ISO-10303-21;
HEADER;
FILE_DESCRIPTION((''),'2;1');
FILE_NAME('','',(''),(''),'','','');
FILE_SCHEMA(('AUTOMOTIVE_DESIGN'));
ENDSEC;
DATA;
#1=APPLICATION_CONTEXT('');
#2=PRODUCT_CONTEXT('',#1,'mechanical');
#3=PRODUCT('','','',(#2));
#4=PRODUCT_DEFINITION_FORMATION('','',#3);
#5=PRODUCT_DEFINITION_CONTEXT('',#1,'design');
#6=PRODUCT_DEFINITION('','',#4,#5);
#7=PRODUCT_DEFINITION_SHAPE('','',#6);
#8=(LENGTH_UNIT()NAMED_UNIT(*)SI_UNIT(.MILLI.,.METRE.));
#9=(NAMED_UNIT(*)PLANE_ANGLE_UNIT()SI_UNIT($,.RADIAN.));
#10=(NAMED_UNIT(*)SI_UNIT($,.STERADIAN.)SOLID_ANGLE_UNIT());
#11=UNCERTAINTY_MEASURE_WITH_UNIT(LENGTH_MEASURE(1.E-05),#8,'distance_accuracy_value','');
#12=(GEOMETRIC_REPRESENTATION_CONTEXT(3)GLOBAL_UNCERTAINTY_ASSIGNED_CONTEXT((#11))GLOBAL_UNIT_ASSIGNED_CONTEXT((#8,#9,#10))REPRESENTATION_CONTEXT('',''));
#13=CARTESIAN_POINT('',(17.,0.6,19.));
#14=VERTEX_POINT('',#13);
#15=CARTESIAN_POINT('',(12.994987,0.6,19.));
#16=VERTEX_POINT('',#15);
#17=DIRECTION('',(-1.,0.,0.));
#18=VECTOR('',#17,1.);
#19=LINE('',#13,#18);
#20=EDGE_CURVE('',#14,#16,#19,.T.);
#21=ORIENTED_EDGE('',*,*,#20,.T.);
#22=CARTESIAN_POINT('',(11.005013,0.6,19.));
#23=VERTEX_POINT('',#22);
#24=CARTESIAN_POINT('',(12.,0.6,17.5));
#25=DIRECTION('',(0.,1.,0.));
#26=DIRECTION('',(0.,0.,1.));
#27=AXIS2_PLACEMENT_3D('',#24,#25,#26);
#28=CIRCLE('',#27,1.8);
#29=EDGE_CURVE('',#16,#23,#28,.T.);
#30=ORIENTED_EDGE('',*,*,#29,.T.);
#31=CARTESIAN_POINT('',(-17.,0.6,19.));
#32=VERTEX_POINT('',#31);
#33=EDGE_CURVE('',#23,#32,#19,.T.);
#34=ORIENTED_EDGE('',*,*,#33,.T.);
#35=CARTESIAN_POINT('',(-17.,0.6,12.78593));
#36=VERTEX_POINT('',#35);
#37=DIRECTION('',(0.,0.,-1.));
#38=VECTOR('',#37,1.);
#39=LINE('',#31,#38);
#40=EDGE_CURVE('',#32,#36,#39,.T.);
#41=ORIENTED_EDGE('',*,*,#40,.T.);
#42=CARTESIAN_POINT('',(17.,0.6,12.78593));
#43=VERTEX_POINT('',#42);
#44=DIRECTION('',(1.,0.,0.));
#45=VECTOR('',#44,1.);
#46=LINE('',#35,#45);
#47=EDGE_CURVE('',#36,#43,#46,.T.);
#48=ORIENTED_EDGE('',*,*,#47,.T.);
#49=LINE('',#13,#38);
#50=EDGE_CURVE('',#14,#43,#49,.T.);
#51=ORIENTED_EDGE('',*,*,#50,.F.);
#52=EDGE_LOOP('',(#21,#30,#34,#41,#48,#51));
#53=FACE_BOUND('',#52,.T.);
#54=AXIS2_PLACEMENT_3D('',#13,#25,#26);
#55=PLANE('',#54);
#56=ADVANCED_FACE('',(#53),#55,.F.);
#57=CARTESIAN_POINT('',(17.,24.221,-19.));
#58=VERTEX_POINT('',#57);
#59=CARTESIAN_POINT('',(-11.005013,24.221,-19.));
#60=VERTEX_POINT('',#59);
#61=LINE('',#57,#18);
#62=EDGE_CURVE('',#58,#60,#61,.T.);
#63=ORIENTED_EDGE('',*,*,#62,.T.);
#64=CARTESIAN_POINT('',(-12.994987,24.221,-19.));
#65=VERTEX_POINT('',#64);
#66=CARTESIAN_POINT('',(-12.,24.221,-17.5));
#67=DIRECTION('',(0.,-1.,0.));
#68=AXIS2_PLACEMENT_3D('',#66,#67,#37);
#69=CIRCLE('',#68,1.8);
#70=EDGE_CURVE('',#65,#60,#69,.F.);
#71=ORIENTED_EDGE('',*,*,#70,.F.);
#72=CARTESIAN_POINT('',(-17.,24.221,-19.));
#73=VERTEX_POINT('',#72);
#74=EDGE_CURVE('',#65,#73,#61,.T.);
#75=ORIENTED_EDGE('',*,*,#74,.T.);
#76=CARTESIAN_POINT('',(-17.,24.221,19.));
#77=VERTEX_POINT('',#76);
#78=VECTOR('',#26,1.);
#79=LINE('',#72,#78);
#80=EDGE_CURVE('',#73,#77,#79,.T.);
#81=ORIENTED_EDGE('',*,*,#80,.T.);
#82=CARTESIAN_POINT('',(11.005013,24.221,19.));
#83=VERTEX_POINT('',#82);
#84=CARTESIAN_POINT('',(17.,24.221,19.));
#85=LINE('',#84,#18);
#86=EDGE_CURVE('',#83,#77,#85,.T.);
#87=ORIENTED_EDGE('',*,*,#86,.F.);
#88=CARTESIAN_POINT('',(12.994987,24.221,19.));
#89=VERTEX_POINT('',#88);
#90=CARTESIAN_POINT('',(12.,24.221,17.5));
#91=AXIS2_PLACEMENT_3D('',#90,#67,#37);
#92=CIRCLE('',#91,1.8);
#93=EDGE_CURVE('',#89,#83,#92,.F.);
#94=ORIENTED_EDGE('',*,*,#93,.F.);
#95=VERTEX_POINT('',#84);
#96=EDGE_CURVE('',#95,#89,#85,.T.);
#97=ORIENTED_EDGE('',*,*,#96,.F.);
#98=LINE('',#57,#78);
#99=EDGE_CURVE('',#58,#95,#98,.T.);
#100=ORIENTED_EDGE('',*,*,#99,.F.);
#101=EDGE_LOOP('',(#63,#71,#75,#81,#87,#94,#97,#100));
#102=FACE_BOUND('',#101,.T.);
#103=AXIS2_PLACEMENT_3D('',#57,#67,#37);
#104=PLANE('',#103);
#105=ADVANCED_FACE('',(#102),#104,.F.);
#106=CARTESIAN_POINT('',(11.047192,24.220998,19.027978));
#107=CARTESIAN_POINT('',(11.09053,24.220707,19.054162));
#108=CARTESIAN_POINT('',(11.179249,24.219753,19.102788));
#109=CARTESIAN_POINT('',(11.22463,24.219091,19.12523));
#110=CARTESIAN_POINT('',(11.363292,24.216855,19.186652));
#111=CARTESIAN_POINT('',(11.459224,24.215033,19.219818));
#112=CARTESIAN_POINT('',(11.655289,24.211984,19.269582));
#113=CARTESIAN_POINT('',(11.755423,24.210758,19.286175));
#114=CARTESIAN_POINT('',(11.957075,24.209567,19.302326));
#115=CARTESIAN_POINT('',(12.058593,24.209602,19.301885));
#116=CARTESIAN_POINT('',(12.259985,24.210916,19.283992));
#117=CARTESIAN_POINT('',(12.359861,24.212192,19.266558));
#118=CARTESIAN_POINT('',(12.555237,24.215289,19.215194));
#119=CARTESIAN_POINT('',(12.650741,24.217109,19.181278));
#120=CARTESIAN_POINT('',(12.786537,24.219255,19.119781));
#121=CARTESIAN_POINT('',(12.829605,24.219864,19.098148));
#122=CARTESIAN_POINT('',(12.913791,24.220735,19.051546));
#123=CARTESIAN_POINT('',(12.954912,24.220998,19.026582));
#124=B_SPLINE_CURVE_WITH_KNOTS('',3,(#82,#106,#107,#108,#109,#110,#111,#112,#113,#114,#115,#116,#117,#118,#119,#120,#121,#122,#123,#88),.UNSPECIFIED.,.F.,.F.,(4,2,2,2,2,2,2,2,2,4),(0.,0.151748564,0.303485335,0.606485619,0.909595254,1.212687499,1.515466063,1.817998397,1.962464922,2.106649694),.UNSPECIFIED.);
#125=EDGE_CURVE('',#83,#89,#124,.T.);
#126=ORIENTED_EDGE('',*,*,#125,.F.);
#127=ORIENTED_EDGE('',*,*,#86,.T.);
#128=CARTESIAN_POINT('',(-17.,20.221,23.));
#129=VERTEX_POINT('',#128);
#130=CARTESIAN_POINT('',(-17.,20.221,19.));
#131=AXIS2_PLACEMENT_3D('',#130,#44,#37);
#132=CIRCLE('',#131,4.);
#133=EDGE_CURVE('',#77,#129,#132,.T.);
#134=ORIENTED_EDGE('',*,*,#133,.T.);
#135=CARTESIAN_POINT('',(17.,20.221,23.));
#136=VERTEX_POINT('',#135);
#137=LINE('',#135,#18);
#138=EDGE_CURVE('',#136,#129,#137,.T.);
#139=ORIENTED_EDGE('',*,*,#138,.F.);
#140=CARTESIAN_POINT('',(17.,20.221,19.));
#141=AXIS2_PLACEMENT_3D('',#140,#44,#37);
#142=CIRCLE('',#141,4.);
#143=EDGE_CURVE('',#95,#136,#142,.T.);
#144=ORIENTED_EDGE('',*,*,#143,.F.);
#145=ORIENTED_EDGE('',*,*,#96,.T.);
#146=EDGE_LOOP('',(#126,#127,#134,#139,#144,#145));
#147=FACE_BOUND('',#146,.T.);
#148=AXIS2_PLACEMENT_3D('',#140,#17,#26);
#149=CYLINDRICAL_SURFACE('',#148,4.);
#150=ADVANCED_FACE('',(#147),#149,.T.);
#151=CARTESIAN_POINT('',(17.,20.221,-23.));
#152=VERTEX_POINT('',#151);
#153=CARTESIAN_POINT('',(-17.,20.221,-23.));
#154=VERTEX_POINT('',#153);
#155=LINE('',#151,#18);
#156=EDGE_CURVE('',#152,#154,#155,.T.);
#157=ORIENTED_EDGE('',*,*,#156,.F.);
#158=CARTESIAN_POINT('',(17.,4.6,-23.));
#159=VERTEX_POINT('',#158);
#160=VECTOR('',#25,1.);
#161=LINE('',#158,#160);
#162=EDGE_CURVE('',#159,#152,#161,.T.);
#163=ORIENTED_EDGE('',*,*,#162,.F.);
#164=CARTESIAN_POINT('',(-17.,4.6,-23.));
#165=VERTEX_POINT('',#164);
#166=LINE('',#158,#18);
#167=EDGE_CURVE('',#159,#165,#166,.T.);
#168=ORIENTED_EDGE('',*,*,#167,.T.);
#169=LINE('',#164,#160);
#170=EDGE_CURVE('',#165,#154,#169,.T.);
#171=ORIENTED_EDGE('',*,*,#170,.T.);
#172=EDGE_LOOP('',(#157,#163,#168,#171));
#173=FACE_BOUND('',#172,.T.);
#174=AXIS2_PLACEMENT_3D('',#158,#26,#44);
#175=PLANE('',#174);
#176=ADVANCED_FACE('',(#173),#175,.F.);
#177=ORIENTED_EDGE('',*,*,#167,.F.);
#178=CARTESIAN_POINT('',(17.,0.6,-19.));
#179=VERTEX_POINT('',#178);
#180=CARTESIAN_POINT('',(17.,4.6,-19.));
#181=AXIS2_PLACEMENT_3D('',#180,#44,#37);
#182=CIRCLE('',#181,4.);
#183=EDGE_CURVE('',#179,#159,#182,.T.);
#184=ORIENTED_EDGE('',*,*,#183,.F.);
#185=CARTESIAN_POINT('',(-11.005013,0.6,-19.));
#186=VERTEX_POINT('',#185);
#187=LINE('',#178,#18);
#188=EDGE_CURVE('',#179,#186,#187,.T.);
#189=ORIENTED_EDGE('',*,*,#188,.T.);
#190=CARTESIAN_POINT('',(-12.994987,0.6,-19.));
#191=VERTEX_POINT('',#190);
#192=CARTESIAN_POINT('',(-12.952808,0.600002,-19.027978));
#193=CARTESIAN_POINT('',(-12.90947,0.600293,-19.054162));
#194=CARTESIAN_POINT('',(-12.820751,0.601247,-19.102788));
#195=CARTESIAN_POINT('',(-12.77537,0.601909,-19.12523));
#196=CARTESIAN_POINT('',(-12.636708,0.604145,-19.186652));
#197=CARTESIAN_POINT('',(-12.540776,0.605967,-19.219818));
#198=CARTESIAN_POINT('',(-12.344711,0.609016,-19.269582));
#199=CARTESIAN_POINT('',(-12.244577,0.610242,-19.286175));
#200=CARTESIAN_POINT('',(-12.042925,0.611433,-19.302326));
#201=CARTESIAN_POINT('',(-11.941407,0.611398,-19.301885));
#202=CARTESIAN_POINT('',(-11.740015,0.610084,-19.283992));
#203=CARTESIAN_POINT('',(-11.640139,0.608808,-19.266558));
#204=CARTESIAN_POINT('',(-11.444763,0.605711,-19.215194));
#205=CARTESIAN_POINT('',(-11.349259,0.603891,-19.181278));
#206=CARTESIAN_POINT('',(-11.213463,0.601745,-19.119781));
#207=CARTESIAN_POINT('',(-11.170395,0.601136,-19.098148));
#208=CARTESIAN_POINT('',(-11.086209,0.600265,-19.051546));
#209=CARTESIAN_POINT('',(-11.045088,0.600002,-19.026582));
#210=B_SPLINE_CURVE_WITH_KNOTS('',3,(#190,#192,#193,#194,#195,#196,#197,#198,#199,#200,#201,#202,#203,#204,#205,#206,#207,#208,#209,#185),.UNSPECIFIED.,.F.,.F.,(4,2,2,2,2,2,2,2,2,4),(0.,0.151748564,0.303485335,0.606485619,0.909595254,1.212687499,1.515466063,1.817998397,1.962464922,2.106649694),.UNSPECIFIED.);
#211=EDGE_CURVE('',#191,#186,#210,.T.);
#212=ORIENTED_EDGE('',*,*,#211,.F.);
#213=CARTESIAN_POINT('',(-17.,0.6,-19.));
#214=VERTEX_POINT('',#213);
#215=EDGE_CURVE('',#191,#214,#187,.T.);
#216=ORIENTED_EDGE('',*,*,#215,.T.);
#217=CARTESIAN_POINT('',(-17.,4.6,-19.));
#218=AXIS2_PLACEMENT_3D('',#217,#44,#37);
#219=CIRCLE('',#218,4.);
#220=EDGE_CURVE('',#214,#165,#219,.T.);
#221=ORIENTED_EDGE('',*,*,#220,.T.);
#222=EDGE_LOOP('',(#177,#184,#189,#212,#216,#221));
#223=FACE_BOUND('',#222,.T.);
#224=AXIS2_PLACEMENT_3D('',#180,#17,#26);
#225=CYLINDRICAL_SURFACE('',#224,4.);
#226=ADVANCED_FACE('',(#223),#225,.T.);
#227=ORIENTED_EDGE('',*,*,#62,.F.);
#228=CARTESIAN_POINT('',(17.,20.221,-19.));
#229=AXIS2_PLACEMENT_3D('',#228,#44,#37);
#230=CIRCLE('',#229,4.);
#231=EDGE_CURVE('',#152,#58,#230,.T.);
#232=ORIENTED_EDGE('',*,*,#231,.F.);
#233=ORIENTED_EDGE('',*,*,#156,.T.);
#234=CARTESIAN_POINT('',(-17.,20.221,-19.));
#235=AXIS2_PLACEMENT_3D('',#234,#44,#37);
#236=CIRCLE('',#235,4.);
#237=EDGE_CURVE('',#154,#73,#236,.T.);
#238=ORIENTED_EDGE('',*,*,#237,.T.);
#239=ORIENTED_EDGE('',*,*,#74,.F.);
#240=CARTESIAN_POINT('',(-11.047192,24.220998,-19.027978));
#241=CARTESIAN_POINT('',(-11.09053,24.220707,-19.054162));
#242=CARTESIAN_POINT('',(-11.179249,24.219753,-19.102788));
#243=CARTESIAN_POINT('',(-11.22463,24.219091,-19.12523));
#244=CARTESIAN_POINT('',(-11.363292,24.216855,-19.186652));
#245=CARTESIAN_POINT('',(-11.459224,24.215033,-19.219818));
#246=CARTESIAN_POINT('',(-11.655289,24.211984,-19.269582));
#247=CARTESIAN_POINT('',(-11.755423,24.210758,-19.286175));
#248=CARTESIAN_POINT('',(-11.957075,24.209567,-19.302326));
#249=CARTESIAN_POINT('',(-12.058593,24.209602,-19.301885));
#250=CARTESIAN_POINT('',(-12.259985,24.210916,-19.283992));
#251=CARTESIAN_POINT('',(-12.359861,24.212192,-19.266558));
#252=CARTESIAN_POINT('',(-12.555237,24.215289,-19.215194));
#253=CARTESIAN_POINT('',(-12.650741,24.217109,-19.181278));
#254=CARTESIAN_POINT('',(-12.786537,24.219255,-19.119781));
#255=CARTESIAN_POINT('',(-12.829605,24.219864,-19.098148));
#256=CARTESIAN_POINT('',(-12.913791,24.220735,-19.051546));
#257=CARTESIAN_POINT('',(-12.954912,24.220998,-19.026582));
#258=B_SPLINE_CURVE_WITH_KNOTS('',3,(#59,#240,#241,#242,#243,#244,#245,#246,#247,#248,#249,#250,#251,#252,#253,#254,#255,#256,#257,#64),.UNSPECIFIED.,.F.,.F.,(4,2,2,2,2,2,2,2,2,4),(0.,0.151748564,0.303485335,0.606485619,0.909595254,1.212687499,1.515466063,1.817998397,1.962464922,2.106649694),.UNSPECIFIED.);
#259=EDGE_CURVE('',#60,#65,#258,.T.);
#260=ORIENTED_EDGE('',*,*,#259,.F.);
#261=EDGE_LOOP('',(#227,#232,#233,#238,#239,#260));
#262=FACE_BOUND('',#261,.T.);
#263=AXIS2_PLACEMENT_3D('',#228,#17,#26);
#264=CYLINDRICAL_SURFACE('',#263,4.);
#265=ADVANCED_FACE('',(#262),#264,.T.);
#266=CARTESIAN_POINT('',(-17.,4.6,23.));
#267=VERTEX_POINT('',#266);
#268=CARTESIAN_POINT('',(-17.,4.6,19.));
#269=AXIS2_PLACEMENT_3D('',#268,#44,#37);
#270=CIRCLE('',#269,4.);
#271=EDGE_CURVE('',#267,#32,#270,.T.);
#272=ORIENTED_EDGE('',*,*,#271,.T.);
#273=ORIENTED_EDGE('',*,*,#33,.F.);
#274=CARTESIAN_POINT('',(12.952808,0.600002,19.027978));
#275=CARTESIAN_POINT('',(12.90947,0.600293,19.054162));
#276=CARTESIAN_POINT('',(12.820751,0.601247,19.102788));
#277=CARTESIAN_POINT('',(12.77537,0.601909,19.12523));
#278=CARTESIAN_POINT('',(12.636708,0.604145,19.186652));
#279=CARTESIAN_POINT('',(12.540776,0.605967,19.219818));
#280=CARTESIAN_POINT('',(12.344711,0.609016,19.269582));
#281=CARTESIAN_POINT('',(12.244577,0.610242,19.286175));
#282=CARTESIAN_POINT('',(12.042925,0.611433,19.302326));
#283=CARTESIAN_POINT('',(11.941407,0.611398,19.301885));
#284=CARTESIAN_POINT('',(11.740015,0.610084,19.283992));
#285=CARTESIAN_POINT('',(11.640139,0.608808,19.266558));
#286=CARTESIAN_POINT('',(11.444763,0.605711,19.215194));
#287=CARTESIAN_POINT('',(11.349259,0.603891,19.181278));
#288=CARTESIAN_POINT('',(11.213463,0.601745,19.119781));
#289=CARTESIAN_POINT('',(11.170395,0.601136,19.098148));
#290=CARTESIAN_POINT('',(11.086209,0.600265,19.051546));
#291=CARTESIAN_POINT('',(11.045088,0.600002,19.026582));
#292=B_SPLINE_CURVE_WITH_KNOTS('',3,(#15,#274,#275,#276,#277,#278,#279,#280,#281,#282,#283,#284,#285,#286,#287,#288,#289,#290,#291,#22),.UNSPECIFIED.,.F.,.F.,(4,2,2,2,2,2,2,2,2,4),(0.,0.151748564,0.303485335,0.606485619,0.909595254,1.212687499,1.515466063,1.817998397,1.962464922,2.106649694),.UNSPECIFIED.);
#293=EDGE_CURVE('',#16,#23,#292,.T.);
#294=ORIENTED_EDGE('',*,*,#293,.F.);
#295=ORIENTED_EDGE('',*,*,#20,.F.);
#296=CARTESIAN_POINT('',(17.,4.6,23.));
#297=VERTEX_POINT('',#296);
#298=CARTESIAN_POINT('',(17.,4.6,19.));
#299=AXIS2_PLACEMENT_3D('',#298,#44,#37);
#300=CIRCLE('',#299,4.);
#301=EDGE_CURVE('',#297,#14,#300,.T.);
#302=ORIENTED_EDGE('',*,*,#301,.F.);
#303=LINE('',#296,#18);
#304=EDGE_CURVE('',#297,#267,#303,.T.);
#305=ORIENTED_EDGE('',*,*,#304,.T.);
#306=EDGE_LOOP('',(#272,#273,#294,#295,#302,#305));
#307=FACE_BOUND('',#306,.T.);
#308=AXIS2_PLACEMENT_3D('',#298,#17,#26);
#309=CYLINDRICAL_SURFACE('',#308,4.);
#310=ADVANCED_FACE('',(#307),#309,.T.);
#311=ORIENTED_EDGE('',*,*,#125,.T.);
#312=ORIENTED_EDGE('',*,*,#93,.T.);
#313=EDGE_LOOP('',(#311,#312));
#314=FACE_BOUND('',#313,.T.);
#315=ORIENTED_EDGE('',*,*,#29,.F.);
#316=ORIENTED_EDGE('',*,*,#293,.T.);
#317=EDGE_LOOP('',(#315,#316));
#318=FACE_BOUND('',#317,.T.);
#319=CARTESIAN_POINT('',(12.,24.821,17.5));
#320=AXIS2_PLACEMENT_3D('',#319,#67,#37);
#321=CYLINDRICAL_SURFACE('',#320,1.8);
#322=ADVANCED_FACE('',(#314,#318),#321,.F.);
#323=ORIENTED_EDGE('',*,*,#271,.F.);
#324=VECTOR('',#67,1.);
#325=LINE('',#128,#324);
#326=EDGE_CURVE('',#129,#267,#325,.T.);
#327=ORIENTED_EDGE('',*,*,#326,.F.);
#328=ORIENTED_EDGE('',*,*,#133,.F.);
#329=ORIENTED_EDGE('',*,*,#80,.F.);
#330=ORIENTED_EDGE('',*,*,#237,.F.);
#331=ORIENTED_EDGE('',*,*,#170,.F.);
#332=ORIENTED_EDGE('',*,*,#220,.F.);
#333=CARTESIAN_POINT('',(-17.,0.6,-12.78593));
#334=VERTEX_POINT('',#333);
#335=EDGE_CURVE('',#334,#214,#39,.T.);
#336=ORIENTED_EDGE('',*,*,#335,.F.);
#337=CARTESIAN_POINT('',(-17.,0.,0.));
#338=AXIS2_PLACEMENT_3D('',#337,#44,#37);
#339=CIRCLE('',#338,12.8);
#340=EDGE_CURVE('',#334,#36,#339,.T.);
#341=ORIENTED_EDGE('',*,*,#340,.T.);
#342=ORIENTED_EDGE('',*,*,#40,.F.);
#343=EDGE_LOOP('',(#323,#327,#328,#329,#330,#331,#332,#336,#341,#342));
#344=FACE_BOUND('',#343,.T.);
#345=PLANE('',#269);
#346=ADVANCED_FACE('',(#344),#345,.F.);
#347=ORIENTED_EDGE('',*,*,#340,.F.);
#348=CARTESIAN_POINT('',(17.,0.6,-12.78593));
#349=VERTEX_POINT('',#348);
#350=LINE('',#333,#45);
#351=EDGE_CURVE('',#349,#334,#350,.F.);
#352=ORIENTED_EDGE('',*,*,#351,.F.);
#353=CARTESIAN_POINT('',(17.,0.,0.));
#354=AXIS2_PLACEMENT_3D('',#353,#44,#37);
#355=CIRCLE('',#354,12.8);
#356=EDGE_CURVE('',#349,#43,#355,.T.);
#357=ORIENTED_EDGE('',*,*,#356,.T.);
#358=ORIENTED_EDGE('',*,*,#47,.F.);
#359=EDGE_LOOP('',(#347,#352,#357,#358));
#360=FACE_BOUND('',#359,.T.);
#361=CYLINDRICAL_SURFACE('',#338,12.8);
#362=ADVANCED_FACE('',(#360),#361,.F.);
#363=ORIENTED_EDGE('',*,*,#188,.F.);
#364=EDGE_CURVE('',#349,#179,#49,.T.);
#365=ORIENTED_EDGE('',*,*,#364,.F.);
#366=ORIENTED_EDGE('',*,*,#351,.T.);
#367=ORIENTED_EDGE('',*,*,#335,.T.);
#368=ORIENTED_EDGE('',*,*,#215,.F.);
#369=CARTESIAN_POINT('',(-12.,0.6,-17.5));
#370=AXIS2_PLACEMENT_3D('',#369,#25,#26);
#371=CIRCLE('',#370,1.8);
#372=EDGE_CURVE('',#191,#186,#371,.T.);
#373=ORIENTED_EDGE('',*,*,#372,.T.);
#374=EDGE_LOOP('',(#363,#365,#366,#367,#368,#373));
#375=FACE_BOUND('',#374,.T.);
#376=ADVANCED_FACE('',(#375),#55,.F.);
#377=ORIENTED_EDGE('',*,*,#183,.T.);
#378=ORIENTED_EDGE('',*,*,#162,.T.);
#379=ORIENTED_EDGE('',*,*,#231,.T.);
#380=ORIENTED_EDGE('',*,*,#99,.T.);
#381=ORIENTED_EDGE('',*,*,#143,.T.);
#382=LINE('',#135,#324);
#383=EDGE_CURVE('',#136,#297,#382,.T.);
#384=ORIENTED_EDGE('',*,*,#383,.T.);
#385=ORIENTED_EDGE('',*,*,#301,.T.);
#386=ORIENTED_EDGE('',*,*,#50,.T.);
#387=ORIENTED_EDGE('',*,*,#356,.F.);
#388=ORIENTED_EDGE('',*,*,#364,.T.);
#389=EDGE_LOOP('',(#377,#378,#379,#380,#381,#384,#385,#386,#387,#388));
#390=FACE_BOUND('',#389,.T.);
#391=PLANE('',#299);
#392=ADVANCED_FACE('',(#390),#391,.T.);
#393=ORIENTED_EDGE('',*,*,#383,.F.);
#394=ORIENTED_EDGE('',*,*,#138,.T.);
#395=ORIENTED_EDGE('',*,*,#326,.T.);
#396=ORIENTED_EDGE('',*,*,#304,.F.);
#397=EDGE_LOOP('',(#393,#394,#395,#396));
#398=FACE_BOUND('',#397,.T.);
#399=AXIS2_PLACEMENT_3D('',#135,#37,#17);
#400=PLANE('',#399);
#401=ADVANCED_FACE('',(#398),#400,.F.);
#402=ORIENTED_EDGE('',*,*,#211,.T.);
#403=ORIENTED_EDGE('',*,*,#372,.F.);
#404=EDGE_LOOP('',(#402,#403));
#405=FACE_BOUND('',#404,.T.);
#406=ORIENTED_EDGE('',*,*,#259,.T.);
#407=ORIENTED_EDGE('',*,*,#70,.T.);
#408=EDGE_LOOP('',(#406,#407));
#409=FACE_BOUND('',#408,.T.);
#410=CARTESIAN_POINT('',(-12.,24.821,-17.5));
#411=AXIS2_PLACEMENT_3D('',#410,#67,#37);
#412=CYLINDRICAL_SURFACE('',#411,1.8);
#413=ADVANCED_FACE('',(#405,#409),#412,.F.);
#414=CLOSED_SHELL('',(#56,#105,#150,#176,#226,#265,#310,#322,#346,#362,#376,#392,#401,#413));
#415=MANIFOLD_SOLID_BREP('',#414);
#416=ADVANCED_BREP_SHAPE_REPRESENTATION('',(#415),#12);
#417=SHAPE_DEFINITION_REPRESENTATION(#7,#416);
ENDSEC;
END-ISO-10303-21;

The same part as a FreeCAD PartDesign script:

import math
import FreeCAD as App
import Part
import Sketcher
from FreeCAD import Vector

doc = App.newDocument("Part")
body = doc.addObject("PartDesign::Body", "Body")

# Sketch on YZ plane
sketch1 = body.newObject("Sketcher::SketchObject", "Sketch")
sketch1.AttachmentSupport = (doc.getObject("YZ_Plane"), [""])
sketch1.MapMode = "FlatFace"
sketch1.addGeometry([
    Part.LineSegment(Vector(0.6, 19, 0), Vector(0.6, -19, 0)),  # 0
    Part.ArcOfCircle(Part.Circle(Vector(4.6, -19, 0), Vector(0, 0, 1), 4), math.radians(180), math.radians(270)),  # 1
    Part.LineSegment(Vector(4.6, -23, 0), Vector(20.2, -23, 0)),  # 2
    Part.ArcOfCircle(Part.Circle(Vector(20.2, -19, 0), Vector(0, 0, 1), 4), math.radians(-90), math.radians(0)),  # 3
    Part.LineSegment(Vector(24.2, -19, 0), Vector(24.2, 19, 0)),  # 4
    Part.ArcOfCircle(Part.Circle(Vector(20.2, 19, 0), Vector(0, 0, 1), 4), math.radians(0), math.radians(90)),  # 5
    Part.LineSegment(Vector(20.2, 23, 0), Vector(4.6, 23, 0)),  # 6
    Part.ArcOfCircle(Part.Circle(Vector(4.6, 19, 0), Vector(0, 0, 1), 4), math.radians(90), math.radians(180)),  # 7
], False)
sketch1.addConstraint([
    Sketcher.Constraint("Tangent", 0, 2, 1, 1),
    Sketcher.Constraint("Tangent", 1, 2, 2, 1),
    Sketcher.Constraint("Tangent", 2, 2, 3, 1),
    Sketcher.Constraint("Tangent", 3, 2, 4, 1),
    Sketcher.Constraint("Tangent", 4, 2, 5, 1),
    Sketcher.Constraint("Tangent", 5, 2, 6, 1),
    Sketcher.Constraint("Tangent", 6, 2, 7, 1),
    Sketcher.Constraint("Tangent", 7, 2, 0, 1),
    Sketcher.Constraint("Vertical", 0),
    Sketcher.Constraint("Horizontal", 2),
    Sketcher.Constraint("Vertical", 4),
    Sketcher.Constraint("Horizontal", 6),
    Sketcher.Constraint("Equal", 1, 3),
    Sketcher.Constraint("Equal", 3, 5),
    Sketcher.Constraint("Equal", 5, 7),
    Sketcher.Constraint("Radius", 1, 4.0),
    Sketcher.Constraint("DistanceY", 0, 2, 0, 1, 38.0),
    Sketcher.Constraint("DistanceY", 1, 3, -1, 1, 19.0),
    Sketcher.Constraint("DistanceX", -1, 1, 1, 3, 4.6),
    Sketcher.Constraint("DistanceX", 2, 1, 2, 2, 15.621),
])
pad1 = body.newObject("PartDesign::Pad", "Pad")
pad1.Profile = sketch1
pad1.Length = 34
pad1.Midplane = True

# Sketch on YZ plane
sketch2 = body.newObject("Sketcher::SketchObject", "Sketch001")
sketch2.AttachmentSupport = (doc.getObject("YZ_Plane"), [""])
sketch2.MapMode = "FlatFace"
sketch2.addGeometry(Part.Circle(Vector(0, 0, 0), Vector(0, 0, 1), 13), False)
sketch2.addConstraint([
    Sketcher.Constraint("Coincident", 0, 3, -1, 1),
    Sketcher.Constraint("Diameter", 0, 25.6),
])
pocket1 = body.newObject("PartDesign::Pocket", "Pocket")
pocket1.Profile = sketch2
pocket1.Type = "ThroughAll"
pocket1.Midplane = True

# Sketch on XZ plane
sketch3 = body.newObject("Sketcher::SketchObject", "Sketch002")
sketch3.AttachmentSupport = (doc.getObject("XZ_Plane"), [""])
sketch3.MapMode = "FlatFace"
sketch3.AttachmentOffset = App.Placement(Vector(0, 0, -0.6), App.Rotation())
sketch3.addGeometry([
    Part.Circle(Vector(12, 17.5, 0), Vector(0, 0, 1), 1.8),
    Part.Circle(Vector(-12, -17.5, 0), Vector(0, 0, 1), 1.8),
], False)
sketch3.addConstraint([
    Sketcher.Constraint("Equal", 0, 1),
    Sketcher.Constraint("Symmetric", 0, 3, 1, 3, -1, 1),
    Sketcher.Constraint("Diameter", 0, 3.6),
    Sketcher.Constraint("DistanceX", -1, 1, 0, 3, 12.0),
    Sketcher.Constraint("DistanceY", 1, 3, 0, 3, 35.0),
])
pocket2 = body.newObject("PartDesign::Pocket", "Pocket001")
pocket2.Profile = sketch3
pocket2.Length = 24.221

doc.recompute()
